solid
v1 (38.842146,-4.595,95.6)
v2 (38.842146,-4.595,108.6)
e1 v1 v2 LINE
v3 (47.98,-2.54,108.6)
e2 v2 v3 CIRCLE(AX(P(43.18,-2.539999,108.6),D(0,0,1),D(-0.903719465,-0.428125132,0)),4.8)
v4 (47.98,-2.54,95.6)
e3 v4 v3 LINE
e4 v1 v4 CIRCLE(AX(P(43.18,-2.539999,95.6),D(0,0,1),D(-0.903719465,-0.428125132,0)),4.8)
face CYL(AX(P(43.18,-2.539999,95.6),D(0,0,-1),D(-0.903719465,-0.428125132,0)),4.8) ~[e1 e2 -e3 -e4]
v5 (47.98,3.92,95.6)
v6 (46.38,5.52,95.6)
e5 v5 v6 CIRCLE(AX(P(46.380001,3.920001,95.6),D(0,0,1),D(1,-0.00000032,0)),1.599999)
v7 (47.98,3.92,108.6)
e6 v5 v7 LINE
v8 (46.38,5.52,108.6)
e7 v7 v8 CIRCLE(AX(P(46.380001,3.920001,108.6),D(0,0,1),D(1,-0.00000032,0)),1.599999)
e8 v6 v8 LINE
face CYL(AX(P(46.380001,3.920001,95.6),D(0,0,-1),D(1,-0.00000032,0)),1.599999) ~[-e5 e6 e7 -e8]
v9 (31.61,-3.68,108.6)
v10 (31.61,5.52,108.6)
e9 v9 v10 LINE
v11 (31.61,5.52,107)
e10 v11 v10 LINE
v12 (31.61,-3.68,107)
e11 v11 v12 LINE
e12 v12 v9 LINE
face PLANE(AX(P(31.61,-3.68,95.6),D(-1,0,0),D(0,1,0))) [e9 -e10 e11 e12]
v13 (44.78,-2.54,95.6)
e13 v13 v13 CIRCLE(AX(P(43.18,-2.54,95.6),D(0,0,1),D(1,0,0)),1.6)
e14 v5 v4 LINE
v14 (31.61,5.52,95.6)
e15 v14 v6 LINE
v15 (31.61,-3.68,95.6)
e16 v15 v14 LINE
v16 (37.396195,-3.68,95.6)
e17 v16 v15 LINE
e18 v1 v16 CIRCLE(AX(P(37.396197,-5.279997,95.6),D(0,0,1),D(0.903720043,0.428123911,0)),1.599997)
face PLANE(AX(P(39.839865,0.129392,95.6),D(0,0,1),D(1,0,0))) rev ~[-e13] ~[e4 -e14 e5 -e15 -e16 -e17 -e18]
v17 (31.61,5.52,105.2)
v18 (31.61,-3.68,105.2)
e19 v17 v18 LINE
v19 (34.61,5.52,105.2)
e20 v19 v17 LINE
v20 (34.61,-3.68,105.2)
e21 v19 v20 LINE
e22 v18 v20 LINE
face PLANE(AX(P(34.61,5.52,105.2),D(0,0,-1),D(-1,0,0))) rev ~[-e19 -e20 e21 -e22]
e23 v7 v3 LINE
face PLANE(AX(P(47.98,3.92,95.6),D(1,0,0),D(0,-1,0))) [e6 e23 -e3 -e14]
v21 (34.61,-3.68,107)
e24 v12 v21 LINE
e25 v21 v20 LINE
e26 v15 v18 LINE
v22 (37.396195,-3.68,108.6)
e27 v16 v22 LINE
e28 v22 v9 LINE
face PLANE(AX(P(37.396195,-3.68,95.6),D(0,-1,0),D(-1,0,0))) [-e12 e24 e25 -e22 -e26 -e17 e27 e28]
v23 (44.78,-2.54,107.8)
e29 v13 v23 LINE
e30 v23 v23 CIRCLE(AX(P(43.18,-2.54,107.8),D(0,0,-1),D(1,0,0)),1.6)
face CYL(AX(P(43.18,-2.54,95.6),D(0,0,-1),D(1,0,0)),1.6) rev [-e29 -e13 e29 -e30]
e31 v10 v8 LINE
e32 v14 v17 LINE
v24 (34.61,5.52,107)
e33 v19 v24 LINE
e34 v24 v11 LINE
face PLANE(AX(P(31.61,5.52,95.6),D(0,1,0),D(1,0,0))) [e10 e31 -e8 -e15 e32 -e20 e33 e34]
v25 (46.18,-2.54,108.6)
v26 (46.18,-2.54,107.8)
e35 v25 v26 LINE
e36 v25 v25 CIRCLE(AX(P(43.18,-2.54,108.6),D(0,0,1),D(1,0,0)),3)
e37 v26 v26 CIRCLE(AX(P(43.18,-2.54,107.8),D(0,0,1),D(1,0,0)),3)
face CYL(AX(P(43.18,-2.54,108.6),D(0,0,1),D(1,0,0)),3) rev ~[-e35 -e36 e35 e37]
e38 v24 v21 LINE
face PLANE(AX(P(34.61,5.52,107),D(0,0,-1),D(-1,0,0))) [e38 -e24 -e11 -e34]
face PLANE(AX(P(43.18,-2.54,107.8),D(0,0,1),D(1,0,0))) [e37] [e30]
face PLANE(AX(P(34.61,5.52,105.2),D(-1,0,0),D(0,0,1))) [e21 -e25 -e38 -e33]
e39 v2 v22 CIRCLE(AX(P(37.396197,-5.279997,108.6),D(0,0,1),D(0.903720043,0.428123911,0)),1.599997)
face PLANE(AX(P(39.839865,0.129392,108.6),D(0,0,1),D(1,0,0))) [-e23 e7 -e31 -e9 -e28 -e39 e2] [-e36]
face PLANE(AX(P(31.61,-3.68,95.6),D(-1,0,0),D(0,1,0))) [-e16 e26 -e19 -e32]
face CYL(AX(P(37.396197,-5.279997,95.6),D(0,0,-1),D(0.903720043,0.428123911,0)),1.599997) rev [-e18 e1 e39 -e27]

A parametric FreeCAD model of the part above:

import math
import FreeCAD as App
import Part
import Sketcher
Q = App.Units.Quantity


def add_polygon(sketch, points):
    """Adds a closed chain of lines whose ends are joined by coincident constraints."""
    first, n = sketch.GeometryCount, len(points)
    for a, b in zip(points, points[1:] + points[:1]):
        sketch.addGeometry(Part.LineSegment(App.Vector(*a, 0), App.Vector(*b, 0)), False)
    for i in range(n):
        sketch.addConstraint(Sketcher.Constraint("Coincident", first + i, 2, first + (i + 1) % n, 1))

doc = App.newDocument("Part")
params = doc.addObject("Spreadsheet::Sheet", "Params")
for row, (alias, value) in enumerate([
    ("sketch1_diameter", "3.2 mm"),
    ("sketch1_radius", "4.8 mm"),
    ("sketch1_height", "9.2 mm"),
    ("sketch1_width", "14.77 mm"),
    ("sketch1_height2", "6.46 mm"),
    ("pad1_length", "13 mm"),
    ("sketch2_width", "3 mm"),
    ("sketch2_height", "1.8 mm"),
    ("sketch3_diameter", "6 mm"),
    ("pocket2_length", "0.8 mm"),
], start=1):
    params.set(f"A{row}", alias)
    params.set(f"B{row}", "=" + value)
    params.setAlias(f"B{row}", alias)

body = doc.addObject("PartDesign::Body", "Body")

sketch1 = body.newObject("Sketcher::SketchObject", "Sketch")
sketch1.AttachmentSupport = (doc.getObject("XY_Plane"), [""])
sketch1.MapMode = "FlatFace"
sketch1.AttachmentOffset = App.Placement(App.Vector(0, 0, 95.6), App.Rotation())
sketch1.addGeometry([
    Part.ArcOfCircle(Part.Circle(App.Vector(43.18, -2.539999, 0), App.Vector(0, 0, 1), 4.8), math.radians(-154.651365), math.radians(-0.000009)),
    Part.LineSegment(App.Vector(47.98, -2.54, 0), App.Vector(47.98, 3.92, 0)),
    Part.ArcOfCircle(Part.Circle(App.Vector(46.380001, 3.920001, 0), App.Vector(0, 0, 1), 1.599999), math.radians(-0.000018), math.radians(90.000018)),
    Part.LineSegment(App.Vector(46.38, 5.52, 0), App.Vector(31.61, 5.52, 0)),
    Part.LineSegment(App.Vector(31.61, 5.52, 0), App.Vector(31.61, -3.68, 0)),
    Part.LineSegment(App.Vector(31.61, -3.68, 0), App.Vector(37.396195, -3.68, 0)),
    Part.ArcOfCircle(Part.Circle(App.Vector(37.396197, -5.279997, 0), App.Vector(0, 0, 1), 1.599997), math.radians(25.348558), math.radians(90.00006)),
    Part.Circle(App.Vector(43.18, -2.54, 0), App.Vector(0, 0, 1), 1.6),
], False)
sketch1.addConstraint([
    Sketcher.Constraint("Tangent", 0, 2, 1, 1),
    Sketcher.Constraint("Tangent", 1, 2, 2, 1),
    Sketcher.Constraint("Tangent", 2, 2, 3, 1),
    Sketcher.Constraint("Coincident", 3, 2, 4, 1),
    Sketcher.Constraint("Coincident", 4, 2, 5, 1),
    Sketcher.Constraint("Tangent", 5, 2, 6, 2),
    Sketcher.Constraint("Tangent", 6, 1, 0, 1),
    Sketcher.Constraint("Vertical", 1),
    Sketcher.Constraint("Horizontal", 3),
    Sketcher.Constraint("Vertical", 4),
    Sketcher.Constraint("Horizontal", 5),
    Sketcher.Constraint("Coincident", 7, 3, 0, 3),
    Sketcher.Constraint("Equal", 2, 7),
    Sketcher.Constraint("Diameter", 7, Q("3.2 mm")),
    Sketcher.Constraint("Radius", 0, Q("4.8 mm")),
    Sketcher.Constraint("DistanceY", 4, 2, 4, 1, Q("9.2 mm")),
    Sketcher.Constraint("DistanceX", 3, 2, 3, 1, Q("14.77 mm")),
    Sketcher.Constraint("DistanceY", 1, 1, 1, 2, Q("6.46 mm")),
    Sketcher.Constraint("DistanceX", -1, 1, 0, 3, Q("43.18 mm")),
    Sketcher.Constraint("DistanceY", 0, 3, -1, 1, Q("2.539999 mm")),
    Sketcher.Constraint("DistanceY", 6, 1, -1, 1, Q("4.595 mm")),
])
sketch1.setExpression("Constraints[13]", "Params.sketch1_diameter")
sketch1.setExpression("Constraints[14]", "Params.sketch1_radius")
sketch1.setExpression("Constraints[15]", "Params.sketch1_height")
sketch1.setExpression("Constraints[16]", "Params.sketch1_width")
sketch1.setExpression("Constraints[17]", "Params.sketch1_height2")
pad1 = body.newObject("PartDesign::Pad", "Pad")
pad1.Profile = sketch1
pad1.setExpression("Length", "Params.pad1_length")

sketch2 = body.newObject("Sketcher::SketchObject", "Sketch001")
sketch2.AttachmentSupport = (doc.getObject("XZ_Plane"), [""])
sketch2.MapMode = "FlatFace"
sketch2.AttachmentOffset = App.Placement(App.Vector(0, 0, -5.52), App.Rotation())
add_polygon(sketch2, [(34.61, 107), (34.61, 105.2), (31.61, 105.2), (31.61, 107)])
sketch2.addConstraint([
    Sketcher.Constraint("Vertical", 0),
    Sketcher.Constraint("Horizontal", 1),
    Sketcher.Constraint("Vertical", 2),
    Sketcher.Constraint("Horizontal", 3),
    Sketcher.Constraint("DistanceX", 1, 2, 1, 1, Q("3 mm")),
    Sketcher.Constraint("DistanceY", 0, 2, 0, 1, Q("1.8 mm")),
    Sketcher.Constraint("DistanceY", -1, 1, 2, 2, Q("107 mm")),
    Sketcher.Constraint("DistanceX", -1, 1, 0, 2, Q("34.61 mm")),
])
sketch2.setExpression("Constraints[8]", "Params.sketch2_width")
sketch2.setExpression("Constraints[9]", "Params.sketch2_height")
pocket1 = body.newObject("PartDesign::Pocket", "Pocket")
pocket1.Profile = sketch2
pocket1.Type = "ThroughAll"
pocket1.Reversed = True

sketch3 = body.newObject("Sketcher::SketchObject", "Sketch002")
sketch3.AttachmentSupport = (doc.getObject("XY_Plane"), [""])
sketch3.MapMode = "FlatFace"
sketch3.AttachmentOffset = App.Placement(App.Vector(0, 0, 108.6), App.Rotation())
sketch3.addGeometry(Part.Circle(App.Vector(43.18, -2.54, 0), App.Vector(0, 0, 1), 3), False)
sketch3.addConstraint([
    Sketcher.Constraint("Diameter", 0, Q("6 mm")),
    Sketcher.Constraint("DistanceX", -1, 1, 0, 3, Q("43.18 mm")),
    Sketcher.Constraint("DistanceY", 0, 3, -1, 1, Q("2.54 mm")),
])
sketch3.setExpression("Constraints[0]", "Params.sketch3_diameter")
pocket2 = body.newObject("PartDesign::Pocket", "Pocket001")
pocket2.Profile = sketch3
pocket2.setExpression("Length", "Params.pocket2_length")

doc.recompute()
